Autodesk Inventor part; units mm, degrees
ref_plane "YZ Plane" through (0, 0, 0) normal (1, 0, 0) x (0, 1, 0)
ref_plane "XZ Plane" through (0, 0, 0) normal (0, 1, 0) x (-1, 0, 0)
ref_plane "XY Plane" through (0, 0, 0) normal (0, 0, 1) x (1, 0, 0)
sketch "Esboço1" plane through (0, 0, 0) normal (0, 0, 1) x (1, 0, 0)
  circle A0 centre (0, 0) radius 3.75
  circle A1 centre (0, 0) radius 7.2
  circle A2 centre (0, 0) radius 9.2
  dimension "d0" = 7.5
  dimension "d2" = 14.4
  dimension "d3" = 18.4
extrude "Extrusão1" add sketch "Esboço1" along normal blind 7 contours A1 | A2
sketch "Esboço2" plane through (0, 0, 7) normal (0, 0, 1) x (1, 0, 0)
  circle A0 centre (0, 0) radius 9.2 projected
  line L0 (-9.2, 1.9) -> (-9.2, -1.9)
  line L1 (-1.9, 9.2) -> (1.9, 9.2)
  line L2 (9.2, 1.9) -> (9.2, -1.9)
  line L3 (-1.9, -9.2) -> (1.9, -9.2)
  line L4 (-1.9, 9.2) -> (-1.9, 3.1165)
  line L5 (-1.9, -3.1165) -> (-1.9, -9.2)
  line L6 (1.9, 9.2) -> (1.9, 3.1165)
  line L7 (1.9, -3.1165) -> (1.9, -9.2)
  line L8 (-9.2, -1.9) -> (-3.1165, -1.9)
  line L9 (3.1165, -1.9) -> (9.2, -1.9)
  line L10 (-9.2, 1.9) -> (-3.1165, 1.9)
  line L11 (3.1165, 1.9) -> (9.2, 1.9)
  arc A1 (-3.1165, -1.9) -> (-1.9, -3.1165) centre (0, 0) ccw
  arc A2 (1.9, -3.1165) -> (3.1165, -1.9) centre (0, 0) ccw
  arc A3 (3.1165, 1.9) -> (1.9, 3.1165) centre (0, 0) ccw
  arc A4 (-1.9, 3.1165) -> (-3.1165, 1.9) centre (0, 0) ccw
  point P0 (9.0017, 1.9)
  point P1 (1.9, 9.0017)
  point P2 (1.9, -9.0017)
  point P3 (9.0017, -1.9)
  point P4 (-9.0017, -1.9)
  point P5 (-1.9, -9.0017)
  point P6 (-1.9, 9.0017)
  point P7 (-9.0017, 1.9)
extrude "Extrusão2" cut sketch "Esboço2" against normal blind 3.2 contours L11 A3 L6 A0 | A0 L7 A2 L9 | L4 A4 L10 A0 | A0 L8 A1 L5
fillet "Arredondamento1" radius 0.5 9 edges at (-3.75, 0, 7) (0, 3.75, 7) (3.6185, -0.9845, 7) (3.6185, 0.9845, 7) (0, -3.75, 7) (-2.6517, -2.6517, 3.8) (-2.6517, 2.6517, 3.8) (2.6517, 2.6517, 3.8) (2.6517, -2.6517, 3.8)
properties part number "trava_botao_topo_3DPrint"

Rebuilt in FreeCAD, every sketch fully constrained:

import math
import FreeCAD as App
import Part
import Sketcher

V = App.Vector
Q = App.Units.Quantity


def edges_at(feature, points):
    """Names of the edges that pass closest to the given points."""
    edges = feature.Shape.Edges
    near = lambda p: min(range(len(edges)), key=lambda i: edges[i].distToShape(Part.Vertex(*p))[0])
    return sorted({f"Edge{near(p) + 1}" for p in points})

doc = App.newDocument("Part")
body = doc.addObject("PartDesign::Body", "Body")

sketch1 = body.newObject("Sketcher::SketchObject", "Sketch")
sketch1.AttachmentSupport = (doc.getObject("XY_Plane"), [""])
sketch1.MapMode = "FlatFace"
sketch1.addGeometry([
    Part.Circle(V(0, 0, 0), V(0, 0, 1), 9.2),
    Part.Circle(V(0, 0, 0), V(0, 0, 1), 3.8),
], False)
sketch1.addConstraint([
    Sketcher.Constraint("Coincident", 0, 3, -1, 1),
    Sketcher.Constraint("Coincident", 1, 3, -1, 1),
    Sketcher.Constraint("Diameter", 0, Q("18.4 mm")),
    Sketcher.Constraint("Diameter", 1, Q("7.5 mm")),
])
pad1 = body.newObject("PartDesign::Pad", "Pad")
pad1.Profile = sketch1
pad1.Length = 7

sketch2 = body.newObject("Sketcher::SketchObject", "Sketch001")
sketch2.AttachmentSupport = (doc.getObject("XY_Plane"), [""])
sketch2.MapMode = "FlatFace"
sketch2.AttachmentOffset = App.Placement(V(0, 0, 7), App.Rotation())
sketch2.addGeometry([
    Part.LineSegment(V(3.1, 1.9, 0), V(9, 1.9, 0)),
    Part.ArcOfCircle(Part.Circle(V(0, 0, 0), V(0, 0, 1), 9.2), math.radians(12), math.radians(78)),
    Part.LineSegment(V(1.9, 9, 0), V(1.9, 3.1, 0)),
    Part.ArcOfCircle(Part.Circle(V(0, 0, 0), V(0, 0, 1), 3.7), math.radians(31), math.radians(59)),
    Part.ArcOfCircle(Part.Circle(V(0, 0, 0), V(0, 0, 1), 9.2), math.radians(-78), math.radians(-12)),
    Part.LineSegment(V(9, -1.9, 0), V(3.1, -1.9, 0)),
    Part.ArcOfCircle(Part.Circle(V(0, 0, 0), V(0, 0, 1), 3.7), math.radians(-59), math.radians(-31)),
    Part.LineSegment(V(1.9, -3.1, 0), V(1.9, -9, 0)),
    Part.LineSegment(V(-1.9, 3.1, 0), V(-1.9, 9, 0)),
    Part.ArcOfCircle(Part.Circle(V(0, 0, 0), V(0, 0, 1), 9.2), math.radians(102), math.radians(168)),
    Part.LineSegment(V(-9, 1.9, 0), V(-3.1, 1.9, 0)),
    Part.ArcOfCircle(Part.Circle(V(0, 0, 0), V(0, 0, 1), 3.7), math.radians(121), math.radians(149)),
    Part.ArcOfCircle(Part.Circle(V(0, 0, 0), V(0, 0, 1), 9.2), math.radians(-168), math.radians(-102)),
    Part.LineSegment(V(-1.9, -9, 0), V(-1.9, -3.1, 0)),
    Part.ArcOfCircle(Part.Circle(V(0, 0, 0), V(0, 0, 1), 3.7), math.radians(-149), math.radians(-121)),
    Part.LineSegment(V(-3.1, -1.9, 0), V(-9, -1.9, 0)),
], False)
sketch2.addConstraint([
    Sketcher.Constraint("Coincident", 0, 2, 1, 1),
    Sketcher.Constraint("Coincident", 1, 2, 2, 1),
    Sketcher.Constraint("Coincident", 2, 2, 3, 2),
    Sketcher.Constraint("Coincident", 3, 1, 0, 1),
    Sketcher.Constraint("Coincident", 4, 2, 5, 1),
    Sketcher.Constraint("Coincident", 5, 2, 6, 2),
    Sketcher.Constraint("Coincident", 6, 1, 7, 1),
    Sketcher.Constraint("Coincident", 7, 2, 4, 1),
    Sketcher.Constraint("Coincident", 8, 2, 9, 1),
    Sketcher.Constraint("Coincident", 9, 2, 10, 1),
    Sketcher.Constraint("Coincident", 10, 2, 11, 2),
    Sketcher.Constraint("Coincident", 11, 1, 8, 1),
    Sketcher.Constraint("Coincident", 12, 2, 13, 1),
    Sketcher.Constraint("Coincident", 13, 2, 14, 2),
    Sketcher.Constraint("Coincident", 14, 1, 15, 1),
    Sketcher.Constraint("Coincident", 15, 2, 12, 1),
    Sketcher.Constraint("Horizontal", 0),
    Sketcher.Constraint("Vertical", 2),
    Sketcher.Constraint("Horizontal", 5),
    Sketcher.Constraint("Vertical", 7),
    Sketcher.Constraint("Vertical", 8),
    Sketcher.Constraint("Horizontal", 10),
    Sketcher.Constraint("Vertical", 13),
    Sketcher.Constraint("Horizontal", 15),
    Sketcher.Constraint("Coincident", 1, 3, -1, 1),
    Sketcher.Constraint("Coincident", 3, 3, -1, 1),
    Sketcher.Constraint("Coincident", 4, 3, -1, 1),
    Sketcher.Constraint("Coincident", 6, 3, -1, 1),
    Sketcher.Constraint("Coincident", 9, 3, -1, 1),
    Sketcher.Constraint("Coincident", 11, 3, -1, 1),
    Sketcher.Constraint("Coincident", 12, 3, -1, 1),
    Sketcher.Constraint("Coincident", 14, 3, -1, 1),
    Sketcher.Constraint("Equal", 1, 4),
    Sketcher.Constraint("Equal", 3, 6),
    Sketcher.Constraint("Equal", 4, 9),
    Sketcher.Constraint("Equal", 6, 11),
    Sketcher.Constraint("Equal", 9, 12),
    Sketcher.Constraint("Equal", 11, 14),
    Sketcher.Constraint("Horizontal", 1, 2, 8, 2),
    Sketcher.Constraint("Horizontal", 3, 1, 9, 2),
    Sketcher.Constraint("Horizontal", 7, 2, 12, 2),
    Sketcher.Constraint("Horizontal", 5, 2, 14, 1),
    Sketcher.Constraint("Vertical", 0, 2, 4, 2),
    Sketcher.Constraint("Vertical", 2, 2, 6, 1),
    Sketcher.Constraint("Equal", 15, 2),
    Sketcher.Constraint("Radius", 1, Q("9.2 mm")),
    Sketcher.Constraint("Radius", 3, Q("3.65 mm")),
    Sketcher.Constraint("DistanceY", -1, 1, 0, 2, Q("1.9 mm")),
])
pocket1 = body.newObject("PartDesign::Pocket", "Pocket")
pocket1.Profile = sketch2
pocket1.Length = 3.2
doc.recompute()

fillet = body.newObject("PartDesign::Fillet", "Fillet")
fillet.Base = (pocket1, edges_at(pocket1, [
    (-3.75, 0, 7),
    (0, 3.75, 7),
    (3.619, -0.985, 7),
    (3.619, 0.985, 7),
    (0, -3.75, 7),
    (-2.652, -2.652, 3.8),
    (-2.652, 2.652, 3.8),
    (2.652, 2.652, 3.8),
    (2.652, -2.652, 3.8),
]))
fillet.Radius = 0.5

doc.recompute()
